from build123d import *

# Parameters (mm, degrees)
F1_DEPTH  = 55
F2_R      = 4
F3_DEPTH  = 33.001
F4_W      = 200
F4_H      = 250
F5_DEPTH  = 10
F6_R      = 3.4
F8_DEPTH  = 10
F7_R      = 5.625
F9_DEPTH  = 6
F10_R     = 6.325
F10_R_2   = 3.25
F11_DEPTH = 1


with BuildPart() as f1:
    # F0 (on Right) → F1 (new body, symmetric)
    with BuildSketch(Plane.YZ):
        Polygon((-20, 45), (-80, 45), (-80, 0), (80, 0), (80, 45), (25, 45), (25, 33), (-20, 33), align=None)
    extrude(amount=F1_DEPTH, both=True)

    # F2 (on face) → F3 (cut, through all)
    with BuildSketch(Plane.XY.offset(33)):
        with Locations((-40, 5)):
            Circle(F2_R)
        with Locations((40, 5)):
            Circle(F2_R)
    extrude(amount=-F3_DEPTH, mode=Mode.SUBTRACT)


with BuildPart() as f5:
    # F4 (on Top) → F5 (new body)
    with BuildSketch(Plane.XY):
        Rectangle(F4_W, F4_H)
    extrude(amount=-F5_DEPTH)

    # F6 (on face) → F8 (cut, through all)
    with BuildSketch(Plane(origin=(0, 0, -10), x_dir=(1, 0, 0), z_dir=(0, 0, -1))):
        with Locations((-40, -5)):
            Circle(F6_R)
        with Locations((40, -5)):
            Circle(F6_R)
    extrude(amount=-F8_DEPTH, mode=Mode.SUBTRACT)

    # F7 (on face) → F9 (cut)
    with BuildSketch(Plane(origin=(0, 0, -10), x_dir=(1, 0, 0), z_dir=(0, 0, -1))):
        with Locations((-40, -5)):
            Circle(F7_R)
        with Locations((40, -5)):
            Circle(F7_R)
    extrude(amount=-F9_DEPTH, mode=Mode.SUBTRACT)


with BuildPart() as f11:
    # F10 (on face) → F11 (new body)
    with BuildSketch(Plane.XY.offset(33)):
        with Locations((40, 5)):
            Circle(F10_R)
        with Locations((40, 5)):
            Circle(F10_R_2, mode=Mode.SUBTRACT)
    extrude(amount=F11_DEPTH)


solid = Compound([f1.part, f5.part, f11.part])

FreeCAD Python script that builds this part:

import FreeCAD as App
import Part
import Sketcher


def add_polygon(sketch, points):
    """Adds a closed chain of lines whose ends are joined by coincident constraints."""
    first, n = sketch.GeometryCount, len(points)
    for a, b in zip(points, points[1:] + points[:1]):
        sketch.addGeometry(Part.LineSegment(App.Vector(*a, 0), App.Vector(*b, 0)), False)
    for i in range(n):
        sketch.addConstraint(Sketcher.Constraint("Coincident", first + i, 2, first + (i + 1) % n, 1))

doc = App.newDocument("Part")
body = doc.addObject("PartDesign::Body", "Body")

# Sketch on YZ plane
sketch1 = body.newObject("Sketcher::SketchObject", "Sketch")
sketch1.AttachmentSupport = (doc.getObject("YZ_Plane"), [""])
sketch1.MapMode = "FlatFace"
add_polygon(sketch1, [(-20, 45), (-80, 45), (-80, 0), (80, 0), (80, 45), (25, 45), (25, 33), (-20, 33)])  # lines 0-7
sketch1.addConstraint(Sketcher.Constraint("Horizontal", 0))
sketch1.addConstraint(Sketcher.Constraint("Vertical", 1))
sketch1.addConstraint(Sketcher.Constraint("Horizontal", 2))
sketch1.addConstraint(Sketcher.Constraint("Vertical", 3))
sketch1.addConstraint(Sketcher.Constraint("Horizontal", 4))
sketch1.addConstraint(Sketcher.Constraint("Vertical", 5))
sketch1.addConstraint(Sketcher.Constraint("Horizontal", 6))
sketch1.addConstraint(Sketcher.Constraint("Vertical", 7))
sketch1.addConstraint(Sketcher.Constraint("Symmetric", 1, 2, 2, 2, -1, 1))
sketch1.addConstraint(Sketcher.Constraint("Horizontal", 0, 2, 3, 2))
sketch1.addConstraint(Sketcher.Constraint("Equal", 6, 1))
sketch1.addConstraint(Sketcher.Constraint("DistanceX", 0, 2, 0, 1, 60.0))
sketch1.addConstraint(Sketcher.Constraint("DistanceX", 2, 1, 2, 2, 160.0))
sketch1.addConstraint(Sketcher.Constraint("DistanceX", 4, 2, 4, 1, 55.0))
sketch1.addConstraint(Sketcher.Constraint("DistanceY", 5, 2, 5, 1, 12.0))
pad1 = body.newObject("PartDesign::Pad", "Pad")
pad1.Profile = sketch1
pad1.Length = 110
pad1.Midplane = True

# Sketch on XY plane
sketch2 = body.newObject("Sketcher::SketchObject", "Sketch001")
sketch2.AttachmentSupport = (doc.getObject("XY_Plane"), [""])
sketch2.MapMode = "FlatFace"
sketch2.AttachmentOffset = App.Placement(App.Vector(0, 0, 33), App.Rotation())
sketch2.addGeometry(Part.Circle(App.Vector(-40, 5, 0), App.Vector(0, 0, 1), 4), False)
sketch2.addGeometry(Part.Circle(App.Vector(40, 5, 0), App.Vector(0, 0, 1), 4), False)
sketch2.addConstraint(Sketcher.Constraint("Equal", 0, 1))
sketch2.addConstraint(Sketcher.Constraint("Symmetric", 0, 3, 1, 3, -2))
sketch2.addConstraint(Sketcher.Constraint("Diameter", 0, 8.0))
sketch2.addConstraint(Sketcher.Constraint("DistanceX", 0, 3, -1, 1, 40.0))
sketch2.addConstraint(Sketcher.Constraint("DistanceY", -1, 1, 0, 3, 5.0))
pocket1 = body.newObject("PartDesign::Pocket", "Pocket")
pocket1.Profile = sketch2
pocket1.Type = "ThroughAll"
body2 = doc.addObject("PartDesign::Body", "Body001")

# Sketch on XY plane
sketch3 = body2.newObject("Sketcher::SketchObject", "Sketch002")
sketch3.AttachmentSupport = (doc.getObject("XY_Plane001"), [""])
sketch3.MapMode = "FlatFace"
add_polygon(sketch3, [(-100, 125), (-100, -125), (100, -125), (100, 125)])  # lines 0-3
sketch3.addConstraint(Sketcher.Constraint("Vertical", 0))
sketch3.addConstraint(Sketcher.Constraint("Horizontal", 1))
sketch3.addConstraint(Sketcher.Constraint("Vertical", 2))
sketch3.addConstraint(Sketcher.Constraint("Horizontal", 3))
sketch3.addConstraint(Sketcher.Constraint("Symmetric", 0, 2, 2, 2, -1, 1))
sketch3.addConstraint(Sketcher.Constraint("DistanceX", 1, 1, 1, 2, 200.0))
sketch3.addConstraint(Sketcher.Constraint("DistanceY", 0, 2, 0, 1, 250.0))
pad2 = body2.newObject("PartDesign::Pad", "Pad001")
pad2.Profile = sketch3
pad2.Length = 10
pad2.Reversed = True

# Sketch on XY plane
sketch4 = body2.newObject("Sketcher::SketchObject", "Sketch003")
sketch4.AttachmentSupport = (doc.getObject("XY_Plane001"), [""])
sketch4.MapMode = "FlatFace"
sketch4.AttachmentOffset = App.Placement(App.Vector(0, 0, -10), App.Rotation())
sketch4.addGeometry(Part.Circle(App.Vector(-40, 5, 0), App.Vector(0, 0, 1), 3.4), False)
sketch4.addGeometry(Part.Circle(App.Vector(40, 5, 0), App.Vector(0, 0, 1), 3.4), False)
sketch4.addConstraint(Sketcher.Constraint("Equal", 0, 1))
sketch4.addConstraint(Sketcher.Constraint("Symmetric", 0, 3, 1, 3, -2))
sketch4.addConstraint(Sketcher.Constraint("Diameter", 0, 6.8))
sketch4.addConstraint(Sketcher.Constraint("DistanceX", 0, 3, -1, 1, 40.0))
sketch4.addConstraint(Sketcher.Constraint("DistanceY", -1, 1, 0, 3, 5.0))
pocket2 = body2.newObject("PartDesign::Pocket", "Pocket001")
pocket2.Profile = sketch4
pocket2.Type = "ThroughAll"
pocket2.Reversed = True

# Sketch on XY plane
sketch5 = body2.newObject("Sketcher::SketchObject", "Sketch004")
sketch5.AttachmentSupport = (doc.getObject("XY_Plane001"), [""])
sketch5.MapMode = "FlatFace"
sketch5.AttachmentOffset = App.Placement(App.Vector(0, 0, -10), App.Rotation())
sketch5.addGeometry(Part.Circle(App.Vector(-40, 5, 0), App.Vector(0, 0, 1), 6), False)
sketch5.addGeometry(Part.Circle(App.Vector(40, 5, 0), App.Vector(0, 0, 1), 6), False)
sketch5.addConstraint(Sketcher.Constraint("Equal", 0, 1))
sketch5.addConstraint(Sketcher.Constraint("Symmetric", 0, 3, 1, 3, -2))
sketch5.addConstraint(Sketcher.Constraint("Diameter", 0, 11.25))
sketch5.addConstraint(Sketcher.Constraint("DistanceX", 0, 3, -1, 1, 40.0))
sketch5.addConstraint(Sketcher.Constraint("DistanceY", -1, 1, 0, 3, 5.0))
pocket3 = body2.newObject("PartDesign::Pocket", "Pocket002")
pocket3.Profile = sketch5
pocket3.Length = 6
pocket3.Reversed = True
body3 = doc.addObject("PartDesign::Body", "Body002")

# Sketch on XY plane
sketch6 = body3.newObject("Sketcher::SketchObject", "Sketch005")
sketch6.AttachmentSupport = (doc.getObject("XY_Plane002"), [""])
sketch6.MapMode = "FlatFace"
sketch6.AttachmentOffset = App.Placement(App.Vector(0, 0, 33), App.Rotation())
sketch6.addGeometry(Part.Circle(App.Vector(40, 5, 0), App.Vector(0, 0, 1), 6.3), False)
sketch6.addGeometry(Part.Circle(App.Vector(40, 5, 0), App.Vector(0, 0, 1), 3.2), False)
sketch6.addConstraint(Sketcher.Constraint("Coincident", 1, 3, 0, 3))
sketch6.addConstraint(Sketcher.Constraint("Diameter", 1, 6.5))
sketch6.addConstraint(Sketcher.Constraint("Diameter", 0, 12.65))
sketch6.addConstraint(Sketcher.Constraint("DistanceX", -1, 1, 0, 3, 40.0))
sketch6.addConstraint(Sketcher.Constraint("DistanceY", -1, 1, 0, 3, 5.0))
pad3 = body3.newObject("PartDesign::Pad", "Pad002")
pad3.Profile = sketch6
pad3.Length = 1

doc.recompute()
